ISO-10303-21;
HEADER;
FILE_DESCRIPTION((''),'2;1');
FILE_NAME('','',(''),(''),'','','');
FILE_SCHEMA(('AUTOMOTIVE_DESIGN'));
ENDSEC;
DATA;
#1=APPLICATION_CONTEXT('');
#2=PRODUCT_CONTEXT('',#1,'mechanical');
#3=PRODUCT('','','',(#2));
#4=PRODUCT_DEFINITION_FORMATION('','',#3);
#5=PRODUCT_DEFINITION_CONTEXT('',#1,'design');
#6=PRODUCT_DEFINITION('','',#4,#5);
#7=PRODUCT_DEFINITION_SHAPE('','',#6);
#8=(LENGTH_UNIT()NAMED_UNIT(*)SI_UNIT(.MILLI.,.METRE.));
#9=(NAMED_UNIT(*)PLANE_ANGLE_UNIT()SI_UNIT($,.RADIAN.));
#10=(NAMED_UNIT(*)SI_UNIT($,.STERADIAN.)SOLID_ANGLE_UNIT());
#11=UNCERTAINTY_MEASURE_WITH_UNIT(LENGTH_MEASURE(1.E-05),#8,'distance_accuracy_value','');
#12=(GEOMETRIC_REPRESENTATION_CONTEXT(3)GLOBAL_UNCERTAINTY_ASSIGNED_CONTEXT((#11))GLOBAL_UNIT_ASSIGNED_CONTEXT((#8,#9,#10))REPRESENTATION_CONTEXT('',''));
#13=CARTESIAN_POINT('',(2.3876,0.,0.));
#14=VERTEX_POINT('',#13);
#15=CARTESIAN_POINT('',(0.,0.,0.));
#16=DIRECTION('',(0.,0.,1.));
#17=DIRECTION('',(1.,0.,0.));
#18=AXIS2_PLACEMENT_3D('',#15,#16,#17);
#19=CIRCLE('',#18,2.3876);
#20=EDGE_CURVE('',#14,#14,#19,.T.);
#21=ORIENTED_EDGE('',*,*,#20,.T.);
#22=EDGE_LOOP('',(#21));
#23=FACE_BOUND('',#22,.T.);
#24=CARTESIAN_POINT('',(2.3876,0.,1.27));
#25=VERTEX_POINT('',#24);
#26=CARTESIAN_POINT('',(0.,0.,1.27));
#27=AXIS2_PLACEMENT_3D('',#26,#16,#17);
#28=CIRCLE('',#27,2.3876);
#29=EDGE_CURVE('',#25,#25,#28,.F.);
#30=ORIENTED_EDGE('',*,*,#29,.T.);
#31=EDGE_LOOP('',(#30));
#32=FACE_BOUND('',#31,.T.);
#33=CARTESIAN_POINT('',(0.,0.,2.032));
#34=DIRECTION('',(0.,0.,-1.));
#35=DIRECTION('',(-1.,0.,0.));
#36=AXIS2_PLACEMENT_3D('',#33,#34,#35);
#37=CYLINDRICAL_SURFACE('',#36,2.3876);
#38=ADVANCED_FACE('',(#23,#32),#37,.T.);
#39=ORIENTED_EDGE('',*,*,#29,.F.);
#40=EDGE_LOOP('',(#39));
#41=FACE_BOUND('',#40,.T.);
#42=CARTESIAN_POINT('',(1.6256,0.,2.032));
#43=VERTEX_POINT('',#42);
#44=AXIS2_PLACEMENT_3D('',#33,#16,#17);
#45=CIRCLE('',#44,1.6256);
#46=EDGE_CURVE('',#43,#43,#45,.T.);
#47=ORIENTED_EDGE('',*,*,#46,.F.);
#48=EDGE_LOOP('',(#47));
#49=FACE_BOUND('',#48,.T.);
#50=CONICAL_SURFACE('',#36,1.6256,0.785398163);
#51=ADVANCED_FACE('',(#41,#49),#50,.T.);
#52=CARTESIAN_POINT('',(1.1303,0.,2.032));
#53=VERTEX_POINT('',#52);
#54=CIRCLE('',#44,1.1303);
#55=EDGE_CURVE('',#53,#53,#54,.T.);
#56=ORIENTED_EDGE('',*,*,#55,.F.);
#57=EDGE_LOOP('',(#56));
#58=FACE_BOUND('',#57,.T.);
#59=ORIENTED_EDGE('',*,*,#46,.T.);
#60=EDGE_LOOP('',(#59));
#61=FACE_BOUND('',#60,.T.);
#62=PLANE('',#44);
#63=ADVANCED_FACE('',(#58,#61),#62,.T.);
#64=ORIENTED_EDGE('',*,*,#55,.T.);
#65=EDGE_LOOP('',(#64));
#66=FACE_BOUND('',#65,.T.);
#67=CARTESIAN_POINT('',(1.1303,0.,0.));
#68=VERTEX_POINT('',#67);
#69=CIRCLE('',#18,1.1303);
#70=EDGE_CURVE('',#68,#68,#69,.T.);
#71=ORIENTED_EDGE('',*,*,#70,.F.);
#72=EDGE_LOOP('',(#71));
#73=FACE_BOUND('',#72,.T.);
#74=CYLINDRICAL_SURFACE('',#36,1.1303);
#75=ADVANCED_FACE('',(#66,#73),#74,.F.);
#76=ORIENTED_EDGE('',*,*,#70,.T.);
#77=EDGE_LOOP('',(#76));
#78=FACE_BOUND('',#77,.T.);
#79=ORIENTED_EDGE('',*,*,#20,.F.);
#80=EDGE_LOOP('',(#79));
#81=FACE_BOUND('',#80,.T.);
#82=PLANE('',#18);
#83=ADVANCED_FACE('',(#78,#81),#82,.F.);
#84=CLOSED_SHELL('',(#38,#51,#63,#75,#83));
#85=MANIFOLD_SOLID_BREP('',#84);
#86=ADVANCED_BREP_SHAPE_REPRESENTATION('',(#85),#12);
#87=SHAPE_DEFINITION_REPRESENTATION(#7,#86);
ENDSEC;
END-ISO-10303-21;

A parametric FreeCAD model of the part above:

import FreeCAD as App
import Part
import Sketcher

V = App.Vector
Q = App.Units.Quantity


def edges_at(feature, points):
    """Names of the edges that pass closest to the given points."""
    edges = feature.Shape.Edges
    near = lambda p: min(range(len(edges)), key=lambda i: edges[i].distToShape(Part.Vertex(*p))[0])
    return sorted({f"Edge{near(p) + 1}" for p in points})

doc = App.newDocument("Part")
body = doc.addObject("PartDesign::Body", "Body")

# Sketch on XY plane
sketch1 = body.newObject("Sketcher::SketchObject", "Sketch")
sketch1.AttachmentSupport = (doc.getObject("XY_Plane"), [""])
sketch1.MapMode = "FlatFace"
sketch1.addGeometry(Part.Circle(V(0, 0, 0), V(0, 0, 1), 2.3876), False)
sketch1.addGeometry(Part.Circle(V(0, 0, 0), V(0, 0, 1), 1.1303), False)
sketch1.addConstraint(Sketcher.Constraint("Coincident", 0, 3, -1, 1))
sketch1.addConstraint(Sketcher.Constraint("Coincident", 1, 3, -1, 1))
sketch1.addConstraint(Sketcher.Constraint("Diameter", 0, Q("0.188 in")))
sketch1.addConstraint(Sketcher.Constraint("Diameter", 1, Q("0.089 in")))
pad1 = body.newObject("PartDesign::Pad", "Pad")
pad1.Profile = sketch1
pad1.Length = Q("0.08 in")
doc.recompute()

chamfer = body.newObject("PartDesign::Chamfer", "Chamfer")
chamfer.Base = (pad1, edges_at(pad1, [(-2.388, 0, 2.032)]))
chamfer.Size = Q("0.03 in")

doc.recompute()
